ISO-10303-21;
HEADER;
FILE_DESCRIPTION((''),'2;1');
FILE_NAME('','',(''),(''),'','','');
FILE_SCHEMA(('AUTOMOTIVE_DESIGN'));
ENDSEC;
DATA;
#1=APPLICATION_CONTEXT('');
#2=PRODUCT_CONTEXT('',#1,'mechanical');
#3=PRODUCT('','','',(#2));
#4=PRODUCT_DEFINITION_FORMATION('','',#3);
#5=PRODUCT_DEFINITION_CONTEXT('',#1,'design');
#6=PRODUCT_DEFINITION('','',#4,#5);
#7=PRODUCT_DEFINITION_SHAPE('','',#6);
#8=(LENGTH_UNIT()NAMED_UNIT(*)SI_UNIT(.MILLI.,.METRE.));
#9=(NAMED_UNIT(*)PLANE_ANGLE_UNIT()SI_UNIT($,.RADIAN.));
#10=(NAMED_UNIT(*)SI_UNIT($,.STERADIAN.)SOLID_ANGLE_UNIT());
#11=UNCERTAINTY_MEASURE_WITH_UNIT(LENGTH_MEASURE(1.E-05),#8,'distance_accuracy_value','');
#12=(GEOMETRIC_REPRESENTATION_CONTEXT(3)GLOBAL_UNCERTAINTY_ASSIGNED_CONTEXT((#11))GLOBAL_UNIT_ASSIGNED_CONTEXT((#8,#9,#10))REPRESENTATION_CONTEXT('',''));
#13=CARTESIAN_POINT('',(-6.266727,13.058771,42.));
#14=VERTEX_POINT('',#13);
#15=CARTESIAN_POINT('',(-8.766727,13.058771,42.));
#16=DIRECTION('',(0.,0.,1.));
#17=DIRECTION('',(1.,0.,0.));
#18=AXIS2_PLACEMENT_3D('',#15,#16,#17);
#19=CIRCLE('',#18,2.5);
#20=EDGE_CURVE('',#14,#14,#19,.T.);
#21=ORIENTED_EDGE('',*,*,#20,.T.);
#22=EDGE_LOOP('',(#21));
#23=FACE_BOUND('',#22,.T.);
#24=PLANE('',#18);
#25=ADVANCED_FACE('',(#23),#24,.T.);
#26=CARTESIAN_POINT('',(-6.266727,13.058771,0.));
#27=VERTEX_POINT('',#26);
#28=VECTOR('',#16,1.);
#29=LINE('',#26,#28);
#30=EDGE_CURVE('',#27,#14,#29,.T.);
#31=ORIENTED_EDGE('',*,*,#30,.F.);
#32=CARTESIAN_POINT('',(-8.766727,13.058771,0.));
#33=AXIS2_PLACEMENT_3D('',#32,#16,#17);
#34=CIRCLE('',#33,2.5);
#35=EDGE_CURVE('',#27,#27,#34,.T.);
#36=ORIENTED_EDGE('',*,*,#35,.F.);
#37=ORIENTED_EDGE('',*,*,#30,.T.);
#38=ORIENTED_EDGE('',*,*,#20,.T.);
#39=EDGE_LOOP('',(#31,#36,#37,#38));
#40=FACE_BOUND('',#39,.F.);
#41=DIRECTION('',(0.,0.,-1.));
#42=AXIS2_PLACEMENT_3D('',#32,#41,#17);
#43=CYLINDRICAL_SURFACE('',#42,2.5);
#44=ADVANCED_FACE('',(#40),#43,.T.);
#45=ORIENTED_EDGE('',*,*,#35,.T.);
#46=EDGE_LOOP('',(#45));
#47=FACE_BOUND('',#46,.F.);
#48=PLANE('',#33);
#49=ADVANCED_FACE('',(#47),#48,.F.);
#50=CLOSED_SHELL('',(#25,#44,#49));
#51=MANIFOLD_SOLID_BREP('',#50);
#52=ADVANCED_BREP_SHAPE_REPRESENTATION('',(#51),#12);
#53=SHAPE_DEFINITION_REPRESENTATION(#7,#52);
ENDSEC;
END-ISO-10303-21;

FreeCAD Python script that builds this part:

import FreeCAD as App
import Part
import Sketcher

doc = App.newDocument("Part")
body = doc.addObject("PartDesign::Body", "Body")

# Sketch on XY plane
sketch1 = body.newObject("Sketcher::SketchObject", "Sketch")
sketch1.AttachmentSupport = (doc.getObject("XY_Plane"), [""])
sketch1.MapMode = "FlatFace"
sketch1.addGeometry(Part.Circle(App.Vector(-8.766727, 13.058771, 0), App.Vector(0, 0, 1), 2.5), False)
sketch1.addConstraint(Sketcher.Constraint("Diameter", 0, 5.0))
sketch1.addConstraint(Sketcher.Constraint("DistanceY", -1, 1, 0, 3, 13.058771))
sketch1.addConstraint(Sketcher.Constraint("DistanceX", 0, 3, -1, 1, 8.766727))
pad1 = body.newObject("PartDesign::Pad", "Pad")
pad1.Profile = sketch1
pad1.Length = 42

doc.recompute()
